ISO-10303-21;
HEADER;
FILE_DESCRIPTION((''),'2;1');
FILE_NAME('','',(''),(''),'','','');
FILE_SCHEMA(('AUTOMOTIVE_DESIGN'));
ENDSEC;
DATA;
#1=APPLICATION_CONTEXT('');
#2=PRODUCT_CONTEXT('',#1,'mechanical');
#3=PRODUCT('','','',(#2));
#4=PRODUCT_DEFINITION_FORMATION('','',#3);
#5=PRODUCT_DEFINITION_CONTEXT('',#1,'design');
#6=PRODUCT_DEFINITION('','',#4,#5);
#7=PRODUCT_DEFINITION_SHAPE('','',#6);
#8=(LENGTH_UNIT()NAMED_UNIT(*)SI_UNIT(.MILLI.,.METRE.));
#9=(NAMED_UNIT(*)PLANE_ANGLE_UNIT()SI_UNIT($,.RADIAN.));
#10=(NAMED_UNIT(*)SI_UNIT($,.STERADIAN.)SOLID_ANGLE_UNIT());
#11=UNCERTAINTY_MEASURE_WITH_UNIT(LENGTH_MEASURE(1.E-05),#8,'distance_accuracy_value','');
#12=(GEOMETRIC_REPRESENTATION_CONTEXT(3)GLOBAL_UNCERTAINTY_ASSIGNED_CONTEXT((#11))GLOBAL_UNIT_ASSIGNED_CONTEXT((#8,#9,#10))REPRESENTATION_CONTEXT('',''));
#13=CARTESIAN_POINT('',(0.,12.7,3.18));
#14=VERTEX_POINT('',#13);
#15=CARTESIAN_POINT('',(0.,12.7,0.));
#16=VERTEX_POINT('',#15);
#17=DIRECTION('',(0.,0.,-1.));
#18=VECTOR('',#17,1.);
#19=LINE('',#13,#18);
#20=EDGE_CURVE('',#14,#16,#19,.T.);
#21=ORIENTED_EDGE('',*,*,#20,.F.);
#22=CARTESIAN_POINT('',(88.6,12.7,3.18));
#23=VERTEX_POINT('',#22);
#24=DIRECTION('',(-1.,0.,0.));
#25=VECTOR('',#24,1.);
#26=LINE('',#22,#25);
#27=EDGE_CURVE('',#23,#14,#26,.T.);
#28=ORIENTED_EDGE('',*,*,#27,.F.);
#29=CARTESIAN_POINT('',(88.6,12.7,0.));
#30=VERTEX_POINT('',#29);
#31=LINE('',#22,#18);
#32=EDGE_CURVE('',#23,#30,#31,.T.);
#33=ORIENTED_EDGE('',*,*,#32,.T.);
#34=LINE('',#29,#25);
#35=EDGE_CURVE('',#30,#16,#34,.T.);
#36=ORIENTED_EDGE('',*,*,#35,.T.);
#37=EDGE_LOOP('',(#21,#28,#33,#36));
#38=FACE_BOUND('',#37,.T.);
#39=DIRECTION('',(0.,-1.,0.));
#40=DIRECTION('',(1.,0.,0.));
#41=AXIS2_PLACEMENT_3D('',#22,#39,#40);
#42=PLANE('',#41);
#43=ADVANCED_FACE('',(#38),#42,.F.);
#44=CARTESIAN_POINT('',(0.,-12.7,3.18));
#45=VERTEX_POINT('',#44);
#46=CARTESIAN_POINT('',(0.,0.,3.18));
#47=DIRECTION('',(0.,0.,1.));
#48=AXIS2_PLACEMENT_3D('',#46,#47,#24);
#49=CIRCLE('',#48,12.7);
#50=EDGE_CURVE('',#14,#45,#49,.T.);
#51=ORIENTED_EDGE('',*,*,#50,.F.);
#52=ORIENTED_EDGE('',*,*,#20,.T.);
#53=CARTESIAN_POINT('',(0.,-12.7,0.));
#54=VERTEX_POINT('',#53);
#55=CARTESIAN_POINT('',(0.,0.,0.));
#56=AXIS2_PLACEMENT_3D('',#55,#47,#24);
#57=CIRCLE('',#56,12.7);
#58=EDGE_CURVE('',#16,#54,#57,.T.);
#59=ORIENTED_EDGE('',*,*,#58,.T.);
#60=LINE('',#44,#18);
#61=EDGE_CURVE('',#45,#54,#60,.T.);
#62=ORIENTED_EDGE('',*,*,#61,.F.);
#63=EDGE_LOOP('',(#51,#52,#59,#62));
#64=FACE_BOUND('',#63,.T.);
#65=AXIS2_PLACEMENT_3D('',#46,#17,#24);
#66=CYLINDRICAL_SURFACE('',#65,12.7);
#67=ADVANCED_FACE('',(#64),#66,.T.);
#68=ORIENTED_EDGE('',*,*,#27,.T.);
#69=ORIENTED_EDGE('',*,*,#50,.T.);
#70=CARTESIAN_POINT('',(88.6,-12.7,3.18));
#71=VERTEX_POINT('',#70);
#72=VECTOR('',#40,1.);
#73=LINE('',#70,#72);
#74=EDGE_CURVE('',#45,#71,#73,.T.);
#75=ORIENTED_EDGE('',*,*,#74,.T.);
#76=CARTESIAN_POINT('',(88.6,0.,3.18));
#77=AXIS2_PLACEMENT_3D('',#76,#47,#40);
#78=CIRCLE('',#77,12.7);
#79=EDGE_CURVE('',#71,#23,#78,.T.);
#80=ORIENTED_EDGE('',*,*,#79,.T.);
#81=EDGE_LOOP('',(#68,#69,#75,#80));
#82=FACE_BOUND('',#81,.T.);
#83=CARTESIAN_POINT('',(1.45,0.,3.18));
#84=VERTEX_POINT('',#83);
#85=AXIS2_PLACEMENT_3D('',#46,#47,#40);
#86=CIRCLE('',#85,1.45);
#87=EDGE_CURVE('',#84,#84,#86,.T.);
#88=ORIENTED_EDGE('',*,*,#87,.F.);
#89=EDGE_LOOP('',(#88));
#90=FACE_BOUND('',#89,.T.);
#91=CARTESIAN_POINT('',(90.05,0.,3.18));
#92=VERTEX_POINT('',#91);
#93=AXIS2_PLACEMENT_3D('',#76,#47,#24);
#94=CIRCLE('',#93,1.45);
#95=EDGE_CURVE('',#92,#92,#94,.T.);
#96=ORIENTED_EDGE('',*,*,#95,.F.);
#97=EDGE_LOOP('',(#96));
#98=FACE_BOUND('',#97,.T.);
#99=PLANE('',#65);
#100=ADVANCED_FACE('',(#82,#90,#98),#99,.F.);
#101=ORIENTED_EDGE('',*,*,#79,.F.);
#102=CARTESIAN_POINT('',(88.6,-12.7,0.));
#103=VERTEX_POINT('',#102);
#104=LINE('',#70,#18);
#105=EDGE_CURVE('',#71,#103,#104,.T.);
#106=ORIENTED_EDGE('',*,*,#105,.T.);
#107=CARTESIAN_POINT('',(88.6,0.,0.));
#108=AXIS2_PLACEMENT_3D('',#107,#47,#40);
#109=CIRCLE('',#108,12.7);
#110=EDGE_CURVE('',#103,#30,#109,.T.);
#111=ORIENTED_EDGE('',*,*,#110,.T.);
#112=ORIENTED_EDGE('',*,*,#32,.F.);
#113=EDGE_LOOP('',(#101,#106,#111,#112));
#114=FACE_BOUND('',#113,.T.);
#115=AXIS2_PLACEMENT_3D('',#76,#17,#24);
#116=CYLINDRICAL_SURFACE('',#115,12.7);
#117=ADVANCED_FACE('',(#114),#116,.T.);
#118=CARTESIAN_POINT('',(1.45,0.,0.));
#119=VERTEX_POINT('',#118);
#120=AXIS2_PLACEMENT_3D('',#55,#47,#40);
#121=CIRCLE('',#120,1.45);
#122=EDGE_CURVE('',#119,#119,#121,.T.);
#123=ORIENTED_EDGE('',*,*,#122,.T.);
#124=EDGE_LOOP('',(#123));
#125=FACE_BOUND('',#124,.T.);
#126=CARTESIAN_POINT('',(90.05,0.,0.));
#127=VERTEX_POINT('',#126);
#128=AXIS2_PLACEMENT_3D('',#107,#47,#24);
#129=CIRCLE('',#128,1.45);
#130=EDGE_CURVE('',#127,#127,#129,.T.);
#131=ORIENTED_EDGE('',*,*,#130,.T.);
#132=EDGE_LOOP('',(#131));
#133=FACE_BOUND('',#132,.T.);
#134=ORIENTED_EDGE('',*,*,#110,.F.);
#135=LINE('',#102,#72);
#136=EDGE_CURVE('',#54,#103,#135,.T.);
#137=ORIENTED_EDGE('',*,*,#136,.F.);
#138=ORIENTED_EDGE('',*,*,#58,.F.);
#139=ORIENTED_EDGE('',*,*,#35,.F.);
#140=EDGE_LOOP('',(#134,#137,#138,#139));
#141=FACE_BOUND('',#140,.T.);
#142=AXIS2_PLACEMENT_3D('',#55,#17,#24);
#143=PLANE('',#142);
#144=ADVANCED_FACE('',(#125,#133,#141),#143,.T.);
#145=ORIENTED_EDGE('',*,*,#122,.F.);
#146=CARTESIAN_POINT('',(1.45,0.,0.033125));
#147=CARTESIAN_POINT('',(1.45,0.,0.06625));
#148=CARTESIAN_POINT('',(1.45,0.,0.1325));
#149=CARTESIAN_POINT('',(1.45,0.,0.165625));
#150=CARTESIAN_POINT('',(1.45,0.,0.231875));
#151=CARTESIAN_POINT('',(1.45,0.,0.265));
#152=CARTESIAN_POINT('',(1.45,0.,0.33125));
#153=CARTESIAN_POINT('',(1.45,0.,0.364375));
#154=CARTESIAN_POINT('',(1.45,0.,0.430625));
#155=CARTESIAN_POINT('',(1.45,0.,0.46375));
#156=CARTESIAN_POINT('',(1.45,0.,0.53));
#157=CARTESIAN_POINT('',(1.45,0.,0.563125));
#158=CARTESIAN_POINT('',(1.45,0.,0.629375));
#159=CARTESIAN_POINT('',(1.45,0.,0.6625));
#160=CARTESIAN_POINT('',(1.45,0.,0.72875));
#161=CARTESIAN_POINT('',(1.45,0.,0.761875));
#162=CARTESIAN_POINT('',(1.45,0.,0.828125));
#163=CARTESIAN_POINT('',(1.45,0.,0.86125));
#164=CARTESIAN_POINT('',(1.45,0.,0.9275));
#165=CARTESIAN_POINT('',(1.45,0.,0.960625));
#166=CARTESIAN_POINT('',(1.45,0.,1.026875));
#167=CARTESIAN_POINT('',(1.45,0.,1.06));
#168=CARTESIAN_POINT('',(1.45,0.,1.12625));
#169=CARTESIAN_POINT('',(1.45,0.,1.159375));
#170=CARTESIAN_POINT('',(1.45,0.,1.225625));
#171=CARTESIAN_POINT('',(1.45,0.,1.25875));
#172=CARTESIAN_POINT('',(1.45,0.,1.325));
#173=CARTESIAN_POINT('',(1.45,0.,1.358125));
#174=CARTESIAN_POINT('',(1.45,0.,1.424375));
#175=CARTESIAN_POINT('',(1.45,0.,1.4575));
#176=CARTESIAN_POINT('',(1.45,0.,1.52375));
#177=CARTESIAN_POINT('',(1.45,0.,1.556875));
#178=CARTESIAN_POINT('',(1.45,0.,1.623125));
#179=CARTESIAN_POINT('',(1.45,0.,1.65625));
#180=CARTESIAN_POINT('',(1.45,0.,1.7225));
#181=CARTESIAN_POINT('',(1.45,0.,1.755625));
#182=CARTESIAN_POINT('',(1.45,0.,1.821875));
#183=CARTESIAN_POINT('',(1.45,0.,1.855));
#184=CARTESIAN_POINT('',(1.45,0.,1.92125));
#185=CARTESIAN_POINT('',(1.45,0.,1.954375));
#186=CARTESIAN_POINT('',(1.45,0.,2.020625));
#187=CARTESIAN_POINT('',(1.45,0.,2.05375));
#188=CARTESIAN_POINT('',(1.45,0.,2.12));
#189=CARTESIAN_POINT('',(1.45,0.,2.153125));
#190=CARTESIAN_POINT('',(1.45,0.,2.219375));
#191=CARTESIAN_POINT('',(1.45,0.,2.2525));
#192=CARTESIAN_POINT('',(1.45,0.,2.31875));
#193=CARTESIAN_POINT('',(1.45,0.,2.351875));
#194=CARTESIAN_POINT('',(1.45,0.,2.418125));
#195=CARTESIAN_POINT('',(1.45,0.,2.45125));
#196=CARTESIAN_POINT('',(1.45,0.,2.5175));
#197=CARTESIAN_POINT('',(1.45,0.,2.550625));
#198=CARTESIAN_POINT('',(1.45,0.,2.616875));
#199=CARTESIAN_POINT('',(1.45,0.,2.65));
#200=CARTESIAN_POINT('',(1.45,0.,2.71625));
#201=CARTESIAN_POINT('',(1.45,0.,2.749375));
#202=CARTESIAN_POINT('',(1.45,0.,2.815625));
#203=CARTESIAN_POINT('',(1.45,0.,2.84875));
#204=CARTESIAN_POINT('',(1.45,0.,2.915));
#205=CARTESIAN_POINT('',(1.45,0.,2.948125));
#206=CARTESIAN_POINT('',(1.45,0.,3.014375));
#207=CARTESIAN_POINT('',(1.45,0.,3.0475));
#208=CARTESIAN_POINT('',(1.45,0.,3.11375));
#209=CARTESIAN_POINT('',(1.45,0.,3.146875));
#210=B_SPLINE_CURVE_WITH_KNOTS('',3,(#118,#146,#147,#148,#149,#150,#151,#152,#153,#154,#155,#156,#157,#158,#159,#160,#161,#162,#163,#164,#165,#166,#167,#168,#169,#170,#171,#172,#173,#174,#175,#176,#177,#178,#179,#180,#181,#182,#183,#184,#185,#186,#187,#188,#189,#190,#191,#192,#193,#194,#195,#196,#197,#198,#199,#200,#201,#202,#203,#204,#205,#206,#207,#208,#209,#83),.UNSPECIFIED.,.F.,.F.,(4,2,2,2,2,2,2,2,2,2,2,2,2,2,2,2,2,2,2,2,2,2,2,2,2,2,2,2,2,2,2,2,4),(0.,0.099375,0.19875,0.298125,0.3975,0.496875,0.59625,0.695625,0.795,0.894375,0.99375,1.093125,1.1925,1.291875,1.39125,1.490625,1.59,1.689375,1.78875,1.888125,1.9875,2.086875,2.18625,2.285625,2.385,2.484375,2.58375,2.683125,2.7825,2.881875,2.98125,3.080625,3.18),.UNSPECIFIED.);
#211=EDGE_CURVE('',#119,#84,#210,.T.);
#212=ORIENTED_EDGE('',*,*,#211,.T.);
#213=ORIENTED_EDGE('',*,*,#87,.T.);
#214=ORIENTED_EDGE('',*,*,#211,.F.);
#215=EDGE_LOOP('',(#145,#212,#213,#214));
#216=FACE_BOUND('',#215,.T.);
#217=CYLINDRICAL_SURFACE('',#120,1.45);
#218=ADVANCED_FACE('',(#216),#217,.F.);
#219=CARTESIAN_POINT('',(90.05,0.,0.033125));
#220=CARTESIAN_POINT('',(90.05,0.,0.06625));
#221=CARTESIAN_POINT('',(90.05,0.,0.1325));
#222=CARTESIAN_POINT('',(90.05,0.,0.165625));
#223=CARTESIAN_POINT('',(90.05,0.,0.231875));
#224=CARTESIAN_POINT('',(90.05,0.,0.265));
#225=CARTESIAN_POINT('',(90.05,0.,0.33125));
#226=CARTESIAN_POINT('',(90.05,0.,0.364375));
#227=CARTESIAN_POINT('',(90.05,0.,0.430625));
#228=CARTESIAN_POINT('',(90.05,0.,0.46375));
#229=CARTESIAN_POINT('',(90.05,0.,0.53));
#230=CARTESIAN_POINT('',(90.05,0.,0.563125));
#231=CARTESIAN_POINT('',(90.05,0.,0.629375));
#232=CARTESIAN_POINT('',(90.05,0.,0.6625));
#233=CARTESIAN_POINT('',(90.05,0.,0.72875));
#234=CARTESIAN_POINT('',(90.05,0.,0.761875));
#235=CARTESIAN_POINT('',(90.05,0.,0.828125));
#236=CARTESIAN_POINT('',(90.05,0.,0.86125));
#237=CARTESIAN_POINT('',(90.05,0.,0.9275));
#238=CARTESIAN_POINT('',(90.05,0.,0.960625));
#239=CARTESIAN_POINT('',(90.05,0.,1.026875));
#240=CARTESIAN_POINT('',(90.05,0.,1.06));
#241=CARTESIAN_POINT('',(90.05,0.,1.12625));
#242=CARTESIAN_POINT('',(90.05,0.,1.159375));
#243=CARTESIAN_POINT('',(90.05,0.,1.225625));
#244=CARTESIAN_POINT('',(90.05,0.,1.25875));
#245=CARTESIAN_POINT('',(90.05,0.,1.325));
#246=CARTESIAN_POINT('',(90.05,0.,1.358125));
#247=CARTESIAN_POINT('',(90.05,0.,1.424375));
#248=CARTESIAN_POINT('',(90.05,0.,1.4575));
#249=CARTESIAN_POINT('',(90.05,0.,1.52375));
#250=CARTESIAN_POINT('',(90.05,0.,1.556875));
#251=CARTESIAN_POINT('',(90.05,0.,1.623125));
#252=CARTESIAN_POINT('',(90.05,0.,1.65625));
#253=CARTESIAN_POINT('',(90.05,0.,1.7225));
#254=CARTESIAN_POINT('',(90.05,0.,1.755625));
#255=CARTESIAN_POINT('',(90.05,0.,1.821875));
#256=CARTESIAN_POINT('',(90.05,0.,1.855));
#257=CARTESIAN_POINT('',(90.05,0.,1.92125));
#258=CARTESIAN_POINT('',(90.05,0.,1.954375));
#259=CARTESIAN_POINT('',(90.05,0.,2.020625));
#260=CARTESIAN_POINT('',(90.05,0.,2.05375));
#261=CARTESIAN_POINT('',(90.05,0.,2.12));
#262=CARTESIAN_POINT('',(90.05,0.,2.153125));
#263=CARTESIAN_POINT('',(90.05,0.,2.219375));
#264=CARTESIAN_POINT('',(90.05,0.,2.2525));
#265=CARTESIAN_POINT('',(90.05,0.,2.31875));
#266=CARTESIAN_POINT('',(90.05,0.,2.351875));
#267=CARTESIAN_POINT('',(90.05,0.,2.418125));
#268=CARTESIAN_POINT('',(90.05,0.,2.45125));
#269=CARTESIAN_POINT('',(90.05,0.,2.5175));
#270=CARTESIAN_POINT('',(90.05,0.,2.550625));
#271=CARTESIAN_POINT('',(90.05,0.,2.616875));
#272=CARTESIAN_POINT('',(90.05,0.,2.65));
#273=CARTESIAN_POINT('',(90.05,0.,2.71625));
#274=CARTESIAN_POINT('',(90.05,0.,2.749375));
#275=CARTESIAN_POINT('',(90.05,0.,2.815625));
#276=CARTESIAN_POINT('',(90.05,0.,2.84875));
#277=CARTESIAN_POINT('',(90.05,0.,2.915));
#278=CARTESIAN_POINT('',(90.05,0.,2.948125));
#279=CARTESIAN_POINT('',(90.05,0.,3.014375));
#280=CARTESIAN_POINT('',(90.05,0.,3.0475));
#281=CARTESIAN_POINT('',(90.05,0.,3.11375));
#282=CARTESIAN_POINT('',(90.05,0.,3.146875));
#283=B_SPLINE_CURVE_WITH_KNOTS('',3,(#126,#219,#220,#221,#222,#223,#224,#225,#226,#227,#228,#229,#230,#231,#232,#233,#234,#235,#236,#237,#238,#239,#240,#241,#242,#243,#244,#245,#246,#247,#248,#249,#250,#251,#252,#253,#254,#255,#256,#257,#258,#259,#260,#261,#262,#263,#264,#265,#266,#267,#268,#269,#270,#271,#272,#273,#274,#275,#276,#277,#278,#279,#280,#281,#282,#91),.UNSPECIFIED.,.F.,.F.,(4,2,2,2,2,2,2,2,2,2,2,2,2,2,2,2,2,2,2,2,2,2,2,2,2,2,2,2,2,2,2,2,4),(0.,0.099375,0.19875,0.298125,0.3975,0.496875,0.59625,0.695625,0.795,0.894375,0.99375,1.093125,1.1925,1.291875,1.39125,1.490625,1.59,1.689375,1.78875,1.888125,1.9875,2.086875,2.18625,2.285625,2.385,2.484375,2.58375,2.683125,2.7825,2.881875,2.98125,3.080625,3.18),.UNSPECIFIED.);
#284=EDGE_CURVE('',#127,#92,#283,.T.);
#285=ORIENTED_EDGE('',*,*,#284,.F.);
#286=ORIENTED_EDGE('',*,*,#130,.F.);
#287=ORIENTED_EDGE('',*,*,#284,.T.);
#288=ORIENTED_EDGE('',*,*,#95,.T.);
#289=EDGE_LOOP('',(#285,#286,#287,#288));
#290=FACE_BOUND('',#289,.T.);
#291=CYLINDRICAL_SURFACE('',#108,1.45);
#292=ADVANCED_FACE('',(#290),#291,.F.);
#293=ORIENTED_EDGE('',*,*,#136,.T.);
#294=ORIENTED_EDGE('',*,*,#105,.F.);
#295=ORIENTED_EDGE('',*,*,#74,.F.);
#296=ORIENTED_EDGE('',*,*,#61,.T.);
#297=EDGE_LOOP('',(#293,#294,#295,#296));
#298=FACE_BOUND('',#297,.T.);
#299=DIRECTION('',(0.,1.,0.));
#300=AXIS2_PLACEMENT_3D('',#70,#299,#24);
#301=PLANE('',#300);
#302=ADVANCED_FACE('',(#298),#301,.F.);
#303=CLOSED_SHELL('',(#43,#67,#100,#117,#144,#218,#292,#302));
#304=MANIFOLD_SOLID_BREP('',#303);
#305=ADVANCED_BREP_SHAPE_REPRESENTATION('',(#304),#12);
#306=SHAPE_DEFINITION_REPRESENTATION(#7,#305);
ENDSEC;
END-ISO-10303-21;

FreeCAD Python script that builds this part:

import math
import FreeCAD as App
import Part
import Sketcher

V = App.Vector
Q = App.Units.Quantity

doc = App.newDocument("Part")
params = doc.addObject("Spreadsheet::Sheet", "Params")
for row, (alias, value) in enumerate([
    ("sketch1_radius", "12.7 mm"),
    ("sketch1_width", "88.6 mm"),
    ("pad1_length", "3.18 mm"),
    ("sketch2_diameter", "2.9 mm"),
], start=1):
    params.set(f"A{row}", alias)
    params.set(f"B{row}", "=" + value)
    params.setAlias(f"B{row}", alias)

body = doc.addObject("PartDesign::Body", "Body")

sketch1 = doc.addObject("Sketcher::SketchObject", "Sketch")
body.addObject(sketch1)
sketch1.AttachmentSupport = (doc.XY_Plane, [""])
sketch1.MapMode = "FlatFace"
sketch1.addGeometry([
    Part.LineSegment(V(0, -13, 0), V(89, -13, 0)),
    Part.ArcOfCircle(Part.Circle(V(89, 0, 0), V(0, 0, 1), 13), math.radians(-90), math.radians(90)),
    Part.LineSegment(V(89, 13, 0), V(0, 13, 0)),
    Part.ArcOfCircle(Part.Circle(V(0, 0, 0), V(0, 0, 1), 13), math.radians(90), math.radians(270)),
], False)
sketch1.addConstraint([
    Sketcher.Constraint("Tangent", 0, 2, 1, 1),
    Sketcher.Constraint("Tangent", 1, 2, 2, 1),
    Sketcher.Constraint("Tangent", 2, 2, 3, 1),
    Sketcher.Constraint("Tangent", 3, 2, 0, 1),
    Sketcher.Constraint("Horizontal", 0),
    Sketcher.Constraint("Horizontal", 2),
    Sketcher.Constraint("Coincident", 3, 3, -1, 1),
    Sketcher.Constraint("Radius", 1, Q("12.7 mm")),
    Sketcher.Constraint("DistanceX", 0, 1, 0, 2, Q("88.6 mm")),
])
sketch1.setExpression("Constraints[7]", "Params.sketch1_radius")
sketch1.setExpression("Constraints[8]", "Params.sketch1_width")
pad1 = doc.addObject("PartDesign::Pad", "Pad")
body.addObject(pad1)
pad1.Profile = sketch1
pad1.setExpression("Length", "Params.pad1_length")

sketch2 = doc.addObject("Sketcher::SketchObject", "Sketch001")
body.addObject(sketch2)
sketch2.AttachmentSupport = (doc.XY_Plane, [""])
sketch2.MapMode = "FlatFace"
sketch2.AttachmentOffset = App.Placement(V(0, 0, 3.18), App.Rotation())
sketch2.addGeometry([
    Part.Circle(V(0, 0, 0), V(0, 0, 1), 1.4),
    Part.Circle(V(88.6, 0, 0), V(0, 0, 1), 1.4),
], False)
sketch2.addConstraint([
    Sketcher.Constraint("Coincident", 0, 3, -1, 1),
    Sketcher.Constraint("Equal", 0, 1),
    Sketcher.Constraint("PointOnObject", 1, 3, -1),
    Sketcher.Constraint("Diameter", 0, Q("2.9 mm")),
    Sketcher.Constraint("DistanceX", -1, 1, 1, 3, Q("88.6 mm")),
])
sketch2.setExpression("Constraints[3]", "Params.sketch2_diameter")
pocket1 = doc.addObject("PartDesign::Pocket", "Pocket")
body.addObject(pocket1)
pocket1.Profile = sketch2
pocket1.Type = "ThroughAll"

doc.recompute()
